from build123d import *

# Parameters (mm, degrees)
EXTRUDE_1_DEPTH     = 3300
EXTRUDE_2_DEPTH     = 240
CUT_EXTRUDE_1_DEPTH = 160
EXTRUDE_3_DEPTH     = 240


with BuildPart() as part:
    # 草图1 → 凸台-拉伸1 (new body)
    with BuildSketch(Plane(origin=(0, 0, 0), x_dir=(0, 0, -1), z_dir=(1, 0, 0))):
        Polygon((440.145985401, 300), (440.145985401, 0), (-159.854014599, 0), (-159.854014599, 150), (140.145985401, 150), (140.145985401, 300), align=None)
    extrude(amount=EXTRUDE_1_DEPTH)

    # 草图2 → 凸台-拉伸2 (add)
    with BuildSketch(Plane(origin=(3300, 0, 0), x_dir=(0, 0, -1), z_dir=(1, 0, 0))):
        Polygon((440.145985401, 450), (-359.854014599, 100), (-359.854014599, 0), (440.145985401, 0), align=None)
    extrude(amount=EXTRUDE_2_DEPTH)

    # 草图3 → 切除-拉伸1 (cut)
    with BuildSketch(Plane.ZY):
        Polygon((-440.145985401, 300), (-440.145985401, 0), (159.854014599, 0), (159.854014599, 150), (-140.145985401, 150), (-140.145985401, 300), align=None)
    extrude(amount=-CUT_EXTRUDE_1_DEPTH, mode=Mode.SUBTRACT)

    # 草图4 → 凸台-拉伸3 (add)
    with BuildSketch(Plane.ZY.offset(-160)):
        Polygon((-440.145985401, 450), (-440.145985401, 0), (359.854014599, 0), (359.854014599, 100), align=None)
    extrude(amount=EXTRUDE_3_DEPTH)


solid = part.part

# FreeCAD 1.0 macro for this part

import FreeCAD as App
import Part
import Sketcher
Q = App.Units.Quantity


def add_polygon(sketch, points):
    """Adds a closed chain of lines whose ends are joined by coincident constraints."""
    first, n = sketch.GeometryCount, len(points)
    for a, b in zip(points, points[1:] + points[:1]):
        sketch.addGeometry(Part.LineSegment(App.Vector(*a, 0), App.Vector(*b, 0)), False)
    for i in range(n):
        sketch.addConstraint(Sketcher.Constraint("Coincident", first + i, 2, first + (i + 1) % n, 1))

doc = App.newDocument("Part")
params = doc.addObject("Spreadsheet::Sheet", "Params")
for row, (alias, value) in enumerate([
    ("sketch1_width", "300 mm"),
    ("pad1_length", "3300 mm"),
    ("sketch2_width", "100 mm"),
    ("sketch2_width2", "450 mm"),
    ("sketch2_height", "800 mm"),
    ("pad2_length", "240 mm"),
    ("sketch3_width", "300 mm"),
    ("pocket1_length", "160 mm"),
    ("sketch4_width", "450 mm"),
    ("sketch4_width2", "100 mm"),
    ("sketch4_height", "800 mm"),
    ("pad3_length", "240 mm"),
], start=1):
    params.set(f"A{row}", alias)
    params.set(f"B{row}", "=" + value)
    params.setAlias(f"B{row}", alias)

body = doc.addObject("PartDesign::Body", "Body")

sketch1 = doc.addObject("Sketcher::SketchObject", "Sketch")
body.addObject(sketch1)
sketch1.AttachmentSupport = (doc.YZ_Plane, [""])
sketch1.MapMode = "FlatFace"
add_polygon(sketch1, [(0, -440.145985), (300, -440.145985), (300, -140.145985), (150, -140.145985), (150, 159.854015), (0, 159.854015)])
sketch1.addConstraint(Sketcher.Constraint("Horizontal", 0))
sketch1.addConstraint(Sketcher.Constraint("Vertical", 1))
sketch1.addConstraint(Sketcher.Constraint("Horizontal", 2))
sketch1.addConstraint(Sketcher.Constraint("Vertical", 3))
sketch1.addConstraint(Sketcher.Constraint("Horizontal", 4))
sketch1.addConstraint(Sketcher.Constraint("Vertical", 5))
sketch1.addConstraint(Sketcher.Constraint("PointOnObject", 4, 2, -2))
sketch1.addConstraint(Sketcher.Constraint("Equal", 2, 4))
sketch1.addConstraint(Sketcher.Constraint("Equal", 0, 1))
sketch1.addConstraint(Sketcher.Constraint("Equal", 1, 3))
sketch1.addConstraint(Sketcher.Constraint("DistanceX", 0, 1, 0, 2, Q("300 mm")))
sketch1.addConstraint(Sketcher.Constraint("DistanceY", 0, 2, -1, 1, Q("440.145985 mm")))
sketch1.setExpression("Constraints[16]", "Params.sketch1_width")
pad1 = doc.addObject("PartDesign::Pad", "Pad")
body.addObject(pad1)
pad1.Profile = sketch1
pad1.setExpression("Length", "Params.pad1_length")

sketch2 = doc.addObject("Sketcher::SketchObject", "Sketch001")
body.addObject(sketch2)
sketch2.AttachmentSupport = (doc.YZ_Plane, [""])
sketch2.MapMode = "FlatFace"
sketch2.AttachmentOffset = App.Placement(App.Vector(0, 0, 3300), App.Rotation())
add_polygon(sketch2, [(450, -440.145985), (100, 359.854015), (0, 359.854015), (0, -440.145985)])
sketch2.addConstraint(Sketcher.Constraint("Horizontal", 1))
sketch2.addConstraint(Sketcher.Constraint("Vertical", 2))
sketch2.addConstraint(Sketcher.Constraint("Horizontal", 3))
sketch2.addConstraint(Sketcher.Constraint("PointOnObject", 1, 2, -2))
sketch2.addConstraint(Sketcher.Constraint("DistanceX", 1, 2, 1, 1, Q("100 mm")))
sketch2.addConstraint(Sketcher.Constraint("DistanceX", 3, 1, 3, 2, Q("450 mm")))
sketch2.addConstraint(Sketcher.Constraint("DistanceY", 2, 2, 2, 1, Q("800 mm")))
sketch2.addConstraint(Sketcher.Constraint("DistanceY", -1, 1, 0, 2, Q("359.854015 mm")))
sketch2.setExpression("Constraints[8]", "Params.sketch2_width")
sketch2.setExpression("Constraints[9]", "Params.sketch2_width2")
sketch2.setExpression("Constraints[10]", "Params.sketch2_height")
pad2 = doc.addObject("PartDesign::Pad", "Pad001")
body.addObject(pad2)
pad2.Profile = sketch2
pad2.setExpression("Length", "Params.pad2_length")

sketch3 = doc.addObject("Sketcher::SketchObject", "Sketch002")
body.addObject(sketch3)
sketch3.AttachmentSupport = (doc.YZ_Plane, [""])
sketch3.MapMode = "FlatFace"
add_polygon(sketch3, [(300, -440.145985), (0, -440.145985), (0, 159.854015), (150, 159.854015), (150, -140.145985), (300, -140.145985)])
sketch3.addConstraint(Sketcher.Constraint("Horizontal", 0))
sketch3.addConstraint(Sketcher.Constraint("Vertical", 1))
sketch3.addConstraint(Sketcher.Constraint("Horizontal", 2))
sketch3.addConstraint(Sketcher.Constraint("Vertical", 3))
sketch3.addConstraint(Sketcher.Constraint("Horizontal", 4))
sketch3.addConstraint(Sketcher.Constraint("Vertical", 5))
sketch3.addConstraint(Sketcher.Constraint("PointOnObject", 0, 2, -2))
sketch3.addConstraint(Sketcher.Constraint("Equal", 2, 4))
sketch3.addConstraint(Sketcher.Constraint("Equal", 0, 3))
sketch3.addConstraint(Sketcher.Constraint("Equal", 3, 5))
sketch3.addConstraint(Sketcher.Constraint("DistanceX", 0, 2, 0, 1, Q("300 mm")))
sketch3.addConstraint(Sketcher.Constraint("DistanceY", 0, 2, -1, 1, Q("440.145985 mm")))
sketch3.setExpression("Constraints[16]", "Params.sketch3_width")
pocket1 = doc.addObject("PartDesign::Pocket", "Pocket")
body.addObject(pocket1)
pocket1.Profile = sketch3
pocket1.setExpression("Length", "Params.pocket1_length")
pocket1.Reversed = True

sketch4 = doc.addObject("Sketcher::SketchObject", "Sketch003")
body.addObject(sketch4)
sketch4.AttachmentSupport = (doc.YZ_Plane, [""])
sketch4.MapMode = "FlatFace"
sketch4.AttachmentOffset = App.Placement(App.Vector(0, 0, 160), App.Rotation())
add_polygon(sketch4, [(450, -440.145985), (0, -440.145985), (0, 359.854015), (100, 359.854015)])
sketch4.addConstraint(Sketcher.Constraint("Horizontal", 0))
sketch4.addConstraint(Sketcher.Constraint("Vertical", 1))
sketch4.addConstraint(Sketcher.Constraint("Horizontal", 2))
sketch4.addConstraint(Sketcher.Constraint("PointOnObject", 0, 2, -2))
sketch4.addConstraint(Sketcher.Constraint("DistanceX", 0, 2, 0, 1, Q("450 mm")))
sketch4.addConstraint(Sketcher.Constraint("DistanceX", 2, 1, 2, 2, Q("100 mm")))
sketch4.addConstraint(Sketcher.Constraint("DistanceY", 1, 1, 1, 2, Q("800 mm")))
sketch4.addConstraint(Sketcher.Constraint("DistanceY", 0, 2, -1, 1, Q("440.145985 mm")))
sketch4.setExpression("Constraints[8]", "Params.sketch4_width")
sketch4.setExpression("Constraints[9]", "Params.sketch4_width2")
sketch4.setExpression("Constraints[10]", "Params.sketch4_height")
pad3 = doc.addObject("PartDesign::Pad", "Pad002")
body.addObject(pad3)
pad3.Profile = sketch4
pad3.setExpression("Length", "Params.pad3_length")
pad3.Reversed = True

doc.recompute()
